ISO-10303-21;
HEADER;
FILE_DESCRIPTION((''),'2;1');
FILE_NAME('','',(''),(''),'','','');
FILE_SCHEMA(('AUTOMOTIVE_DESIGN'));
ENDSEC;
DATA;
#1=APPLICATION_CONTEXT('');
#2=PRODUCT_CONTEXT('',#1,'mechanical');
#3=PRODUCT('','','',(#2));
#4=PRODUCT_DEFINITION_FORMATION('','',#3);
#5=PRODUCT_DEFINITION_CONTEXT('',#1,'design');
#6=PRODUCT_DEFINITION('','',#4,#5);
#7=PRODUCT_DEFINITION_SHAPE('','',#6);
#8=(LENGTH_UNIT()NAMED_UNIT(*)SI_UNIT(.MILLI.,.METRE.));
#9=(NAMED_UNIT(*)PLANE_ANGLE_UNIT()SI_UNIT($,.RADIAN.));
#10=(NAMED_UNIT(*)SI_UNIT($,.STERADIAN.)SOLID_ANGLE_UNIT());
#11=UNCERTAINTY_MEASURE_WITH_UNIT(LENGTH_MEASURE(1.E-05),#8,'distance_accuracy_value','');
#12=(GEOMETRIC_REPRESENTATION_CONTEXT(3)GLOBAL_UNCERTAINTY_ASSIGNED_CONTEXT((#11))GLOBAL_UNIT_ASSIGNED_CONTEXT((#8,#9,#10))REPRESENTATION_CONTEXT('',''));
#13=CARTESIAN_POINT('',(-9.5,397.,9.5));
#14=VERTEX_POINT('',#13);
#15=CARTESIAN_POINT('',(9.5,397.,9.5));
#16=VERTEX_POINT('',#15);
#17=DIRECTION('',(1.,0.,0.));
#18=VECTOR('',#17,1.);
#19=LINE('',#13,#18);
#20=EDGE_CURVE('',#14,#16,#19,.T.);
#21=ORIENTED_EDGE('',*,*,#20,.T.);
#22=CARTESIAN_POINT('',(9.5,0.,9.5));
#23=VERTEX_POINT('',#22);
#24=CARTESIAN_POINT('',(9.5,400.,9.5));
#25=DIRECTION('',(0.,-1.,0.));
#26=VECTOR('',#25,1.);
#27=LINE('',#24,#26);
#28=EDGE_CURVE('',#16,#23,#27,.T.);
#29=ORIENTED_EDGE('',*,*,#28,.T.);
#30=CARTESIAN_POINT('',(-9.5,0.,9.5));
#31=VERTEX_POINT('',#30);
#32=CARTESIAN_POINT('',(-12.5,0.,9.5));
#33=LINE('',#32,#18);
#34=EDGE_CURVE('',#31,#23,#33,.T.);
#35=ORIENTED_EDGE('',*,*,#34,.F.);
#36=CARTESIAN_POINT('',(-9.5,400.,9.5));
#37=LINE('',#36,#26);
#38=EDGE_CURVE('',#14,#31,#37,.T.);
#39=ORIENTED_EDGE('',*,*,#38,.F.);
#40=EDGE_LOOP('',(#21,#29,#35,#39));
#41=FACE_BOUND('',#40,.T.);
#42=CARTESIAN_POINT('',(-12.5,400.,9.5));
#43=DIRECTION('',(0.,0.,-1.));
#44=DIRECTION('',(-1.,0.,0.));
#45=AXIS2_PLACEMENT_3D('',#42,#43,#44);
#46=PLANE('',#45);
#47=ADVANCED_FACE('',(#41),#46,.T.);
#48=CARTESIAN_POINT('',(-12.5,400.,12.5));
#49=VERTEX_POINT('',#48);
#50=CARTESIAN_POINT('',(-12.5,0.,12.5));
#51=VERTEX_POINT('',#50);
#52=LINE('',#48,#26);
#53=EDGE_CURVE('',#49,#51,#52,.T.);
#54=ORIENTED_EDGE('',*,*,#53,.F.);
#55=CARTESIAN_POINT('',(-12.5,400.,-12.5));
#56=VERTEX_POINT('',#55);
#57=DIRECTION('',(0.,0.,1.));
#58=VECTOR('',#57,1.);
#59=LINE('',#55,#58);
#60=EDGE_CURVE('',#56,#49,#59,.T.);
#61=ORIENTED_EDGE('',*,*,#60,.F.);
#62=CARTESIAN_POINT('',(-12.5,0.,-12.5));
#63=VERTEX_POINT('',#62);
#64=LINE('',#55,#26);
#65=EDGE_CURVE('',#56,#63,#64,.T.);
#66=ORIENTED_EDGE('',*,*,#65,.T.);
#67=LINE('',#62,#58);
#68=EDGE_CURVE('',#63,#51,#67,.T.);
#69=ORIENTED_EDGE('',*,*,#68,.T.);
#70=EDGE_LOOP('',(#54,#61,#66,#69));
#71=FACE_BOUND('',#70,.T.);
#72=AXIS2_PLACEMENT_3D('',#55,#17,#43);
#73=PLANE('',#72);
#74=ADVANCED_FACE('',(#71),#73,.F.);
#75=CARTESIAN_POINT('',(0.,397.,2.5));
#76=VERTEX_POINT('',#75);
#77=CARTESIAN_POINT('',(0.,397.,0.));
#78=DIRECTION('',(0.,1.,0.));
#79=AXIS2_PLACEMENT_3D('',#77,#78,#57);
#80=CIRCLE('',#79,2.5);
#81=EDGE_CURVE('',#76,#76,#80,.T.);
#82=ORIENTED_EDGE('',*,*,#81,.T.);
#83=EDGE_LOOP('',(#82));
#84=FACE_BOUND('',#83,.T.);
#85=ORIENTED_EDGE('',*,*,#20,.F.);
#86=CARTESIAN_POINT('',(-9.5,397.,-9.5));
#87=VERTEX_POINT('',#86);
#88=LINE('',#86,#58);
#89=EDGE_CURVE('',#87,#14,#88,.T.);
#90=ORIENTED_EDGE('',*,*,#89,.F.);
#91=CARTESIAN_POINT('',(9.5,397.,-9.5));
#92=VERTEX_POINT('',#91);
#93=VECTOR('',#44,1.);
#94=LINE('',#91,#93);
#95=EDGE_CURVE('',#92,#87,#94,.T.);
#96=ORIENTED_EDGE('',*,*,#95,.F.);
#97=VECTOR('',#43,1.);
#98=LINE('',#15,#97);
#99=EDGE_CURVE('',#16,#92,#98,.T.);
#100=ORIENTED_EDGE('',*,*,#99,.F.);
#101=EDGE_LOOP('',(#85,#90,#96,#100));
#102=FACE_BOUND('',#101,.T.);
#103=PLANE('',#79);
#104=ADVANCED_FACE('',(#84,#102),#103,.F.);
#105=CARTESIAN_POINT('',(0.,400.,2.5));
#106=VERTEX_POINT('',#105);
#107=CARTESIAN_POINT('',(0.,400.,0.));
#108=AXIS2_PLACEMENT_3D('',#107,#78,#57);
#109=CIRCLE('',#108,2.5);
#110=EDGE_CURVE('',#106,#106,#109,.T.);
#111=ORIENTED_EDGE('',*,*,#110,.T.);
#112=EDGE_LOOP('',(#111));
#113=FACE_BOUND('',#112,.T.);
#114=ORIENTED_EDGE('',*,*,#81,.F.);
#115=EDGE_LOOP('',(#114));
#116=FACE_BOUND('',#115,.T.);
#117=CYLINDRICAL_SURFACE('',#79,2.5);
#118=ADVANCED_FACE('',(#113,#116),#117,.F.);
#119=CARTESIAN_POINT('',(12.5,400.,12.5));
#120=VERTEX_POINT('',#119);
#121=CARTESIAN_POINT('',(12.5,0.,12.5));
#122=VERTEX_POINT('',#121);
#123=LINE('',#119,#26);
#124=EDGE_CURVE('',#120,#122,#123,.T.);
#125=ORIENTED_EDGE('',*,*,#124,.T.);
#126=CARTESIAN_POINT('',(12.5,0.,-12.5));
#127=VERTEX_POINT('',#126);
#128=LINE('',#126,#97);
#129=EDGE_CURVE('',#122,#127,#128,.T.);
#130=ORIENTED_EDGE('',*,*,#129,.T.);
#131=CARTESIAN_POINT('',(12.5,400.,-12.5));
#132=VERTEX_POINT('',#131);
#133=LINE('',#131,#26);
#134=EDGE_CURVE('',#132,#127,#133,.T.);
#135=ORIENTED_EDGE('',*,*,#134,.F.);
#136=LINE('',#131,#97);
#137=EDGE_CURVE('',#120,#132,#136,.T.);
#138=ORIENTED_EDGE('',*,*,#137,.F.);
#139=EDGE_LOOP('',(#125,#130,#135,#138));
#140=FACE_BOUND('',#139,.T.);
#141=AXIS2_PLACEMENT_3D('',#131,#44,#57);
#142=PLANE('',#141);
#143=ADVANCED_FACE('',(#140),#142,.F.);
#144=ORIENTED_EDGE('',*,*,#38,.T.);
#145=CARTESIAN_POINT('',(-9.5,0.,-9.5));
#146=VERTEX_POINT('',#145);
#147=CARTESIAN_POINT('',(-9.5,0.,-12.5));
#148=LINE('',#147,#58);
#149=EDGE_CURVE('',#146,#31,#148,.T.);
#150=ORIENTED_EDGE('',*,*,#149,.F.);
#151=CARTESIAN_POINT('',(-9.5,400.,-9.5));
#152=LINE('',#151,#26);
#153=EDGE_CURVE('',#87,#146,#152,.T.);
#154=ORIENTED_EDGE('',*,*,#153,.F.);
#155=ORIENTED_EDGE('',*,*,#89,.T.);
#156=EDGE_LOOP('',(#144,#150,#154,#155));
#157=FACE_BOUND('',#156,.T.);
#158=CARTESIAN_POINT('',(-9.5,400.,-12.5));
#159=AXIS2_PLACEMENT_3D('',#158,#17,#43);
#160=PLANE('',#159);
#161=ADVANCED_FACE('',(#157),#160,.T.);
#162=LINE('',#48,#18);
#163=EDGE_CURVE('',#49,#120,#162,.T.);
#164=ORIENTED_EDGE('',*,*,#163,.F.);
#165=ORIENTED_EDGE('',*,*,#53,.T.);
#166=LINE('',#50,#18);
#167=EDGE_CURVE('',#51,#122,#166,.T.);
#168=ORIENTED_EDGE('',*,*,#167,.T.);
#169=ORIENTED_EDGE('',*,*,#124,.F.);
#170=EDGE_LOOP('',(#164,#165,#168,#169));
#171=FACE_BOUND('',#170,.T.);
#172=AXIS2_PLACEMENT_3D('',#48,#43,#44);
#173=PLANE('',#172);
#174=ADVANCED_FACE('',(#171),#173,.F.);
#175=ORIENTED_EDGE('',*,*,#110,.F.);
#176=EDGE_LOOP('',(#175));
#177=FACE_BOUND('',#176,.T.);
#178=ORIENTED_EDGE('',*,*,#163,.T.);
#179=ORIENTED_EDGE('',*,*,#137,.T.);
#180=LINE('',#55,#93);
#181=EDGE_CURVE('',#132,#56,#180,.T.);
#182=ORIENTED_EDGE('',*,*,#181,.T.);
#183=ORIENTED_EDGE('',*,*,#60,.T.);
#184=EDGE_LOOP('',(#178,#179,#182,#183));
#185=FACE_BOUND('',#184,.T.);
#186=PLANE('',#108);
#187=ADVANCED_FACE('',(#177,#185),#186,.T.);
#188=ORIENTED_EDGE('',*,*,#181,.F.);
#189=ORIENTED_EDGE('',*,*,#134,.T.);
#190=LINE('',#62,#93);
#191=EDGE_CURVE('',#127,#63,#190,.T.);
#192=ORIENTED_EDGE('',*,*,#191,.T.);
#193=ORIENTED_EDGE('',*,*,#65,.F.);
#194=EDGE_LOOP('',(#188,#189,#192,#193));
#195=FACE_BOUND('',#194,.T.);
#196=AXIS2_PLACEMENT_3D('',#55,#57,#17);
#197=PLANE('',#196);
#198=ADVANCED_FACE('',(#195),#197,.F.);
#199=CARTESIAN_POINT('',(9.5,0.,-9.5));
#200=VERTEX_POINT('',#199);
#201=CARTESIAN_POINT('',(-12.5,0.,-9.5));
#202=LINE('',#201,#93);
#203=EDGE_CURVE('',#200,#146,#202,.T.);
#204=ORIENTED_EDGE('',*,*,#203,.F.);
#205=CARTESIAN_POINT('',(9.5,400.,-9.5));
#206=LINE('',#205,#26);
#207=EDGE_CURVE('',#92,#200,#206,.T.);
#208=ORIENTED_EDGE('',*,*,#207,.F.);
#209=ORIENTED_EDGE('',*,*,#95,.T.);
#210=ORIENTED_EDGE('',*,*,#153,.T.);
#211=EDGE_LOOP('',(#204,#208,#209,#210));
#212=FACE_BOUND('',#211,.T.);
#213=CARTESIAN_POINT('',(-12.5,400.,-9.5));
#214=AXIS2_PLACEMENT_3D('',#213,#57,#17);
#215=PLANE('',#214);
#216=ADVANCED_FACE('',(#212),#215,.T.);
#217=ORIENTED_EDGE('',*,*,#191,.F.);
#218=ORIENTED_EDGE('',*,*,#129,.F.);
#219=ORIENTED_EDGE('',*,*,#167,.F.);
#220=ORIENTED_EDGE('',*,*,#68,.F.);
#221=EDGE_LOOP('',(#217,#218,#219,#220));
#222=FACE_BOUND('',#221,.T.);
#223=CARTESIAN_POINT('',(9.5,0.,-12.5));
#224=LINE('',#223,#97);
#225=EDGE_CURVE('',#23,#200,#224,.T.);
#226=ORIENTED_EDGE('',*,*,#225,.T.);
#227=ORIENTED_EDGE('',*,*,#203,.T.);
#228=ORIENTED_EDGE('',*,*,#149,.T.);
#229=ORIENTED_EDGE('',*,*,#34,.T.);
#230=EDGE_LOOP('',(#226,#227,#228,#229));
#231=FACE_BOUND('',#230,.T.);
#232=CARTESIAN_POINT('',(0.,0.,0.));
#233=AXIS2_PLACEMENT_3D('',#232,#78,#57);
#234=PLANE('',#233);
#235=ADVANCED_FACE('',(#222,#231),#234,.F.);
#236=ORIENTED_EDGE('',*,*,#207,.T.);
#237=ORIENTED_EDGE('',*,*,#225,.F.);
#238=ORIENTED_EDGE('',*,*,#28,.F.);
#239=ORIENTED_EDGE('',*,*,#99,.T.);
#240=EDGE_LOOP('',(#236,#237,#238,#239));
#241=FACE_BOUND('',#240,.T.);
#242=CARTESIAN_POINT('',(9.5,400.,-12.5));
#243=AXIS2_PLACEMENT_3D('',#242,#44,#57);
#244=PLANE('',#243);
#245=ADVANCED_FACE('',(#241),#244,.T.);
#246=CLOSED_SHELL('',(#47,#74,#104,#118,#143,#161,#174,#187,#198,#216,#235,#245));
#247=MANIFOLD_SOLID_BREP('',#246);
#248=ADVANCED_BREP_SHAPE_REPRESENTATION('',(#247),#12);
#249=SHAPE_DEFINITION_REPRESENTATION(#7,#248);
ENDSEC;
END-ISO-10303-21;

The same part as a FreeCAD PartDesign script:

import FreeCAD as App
import Part
import Sketcher

V = App.Vector
Q = App.Units.Quantity


def faces_at(feature, points):
    """Names of the faces that lie closest to the given points."""
    faces = feature.Shape.Faces
    near = lambda p: min(range(len(faces)), key=lambda i: faces[i].distToShape(Part.Vertex(*p))[0])
    return sorted({f"Face{near(p) + 1}" for p in points})


def add_polygon(sketch, points):
    """Adds a closed chain of lines whose ends are joined by coincident constraints."""
    first, n = sketch.GeometryCount, len(points)
    for a, b in zip(points, points[1:] + points[:1]):
        sketch.addGeometry(Part.LineSegment(App.Vector(*a, 0), App.Vector(*b, 0)), False)
    for i in range(n):
        sketch.addConstraint(Sketcher.Constraint("Coincident", first + i, 2, first + (i + 1) % n, 1))

doc = App.newDocument("Part")
params = doc.addObject("Spreadsheet::Sheet", "Params")
for row, (alias, value) in enumerate([
    ("sketch1_width", "25 mm"),
    ("pad1_length", "400 mm"),
    ("thickness_wall", "3 mm"),
    ("sketch2_diameter", "5 mm"),
    ("sketch2_width", "19 mm"),
    ("pad2_length", "3 mm"),
], start=1):
    params.set(f"A{row}", alias)
    params.set(f"B{row}", "=" + value)
    params.setAlias(f"B{row}", alias)

body = doc.addObject("PartDesign::Body", "Body")

# Sketch on XZ plane
sketch1 = doc.addObject("Sketcher::SketchObject", "Sketch")
body.addObject(sketch1)
sketch1.AttachmentSupport = (doc.XZ_Plane, [""])
sketch1.MapMode = "FlatFace"
add_polygon(sketch1, [(-12.5, -12.5), (-12.5, 12.5), (12.5, 12.5), (12.5, -12.5)])  # lines 0-3
sketch1.addConstraint([
    Sketcher.Constraint("Vertical", 0),
    Sketcher.Constraint("Horizontal", 1),
    Sketcher.Constraint("Vertical", 2),
    Sketcher.Constraint("Horizontal", 3),
    Sketcher.Constraint("Symmetric", 0, 2, 2, 2, -1, 1),
    Sketcher.Constraint("Equal", 3, 0),
    Sketcher.Constraint("DistanceX", 1, 1, 1, 2, Q("25 mm")),
])
sketch1.setExpression("Constraints[10]", "Params.sketch1_width")
pad1 = doc.addObject("PartDesign::Pad", "Pad")
body.addObject(pad1)
pad1.Profile = sketch1
pad1.setExpression("Length", "Params.pad1_length")
pad1.Reversed = True
doc.recompute()

thickness = doc.addObject("PartDesign::Thickness", "Thickness")
body.addObject(thickness)
thickness.Base = (pad1, faces_at(pad1, [(0, 400, 0), (0, 0, 0)]))
thickness.setExpression("Value", "Params.thickness_wall")
thickness.Reversed = True
thickness.Join = "Intersection"

# Sketch on XZ plane
sketch2 = doc.addObject("Sketcher::SketchObject", "Sketch001")
body.addObject(sketch2)
sketch2.AttachmentSupport = (doc.XZ_Plane, [""])
sketch2.MapMode = "FlatFace"
sketch2.AttachmentOffset = App.Placement(V(0, 0, -400), App.Rotation())
add_polygon(sketch2, [(-9.5, -9.5), (-9.5, 9.5), (9.5, 9.5), (9.5, -9.5)])  # lines 0-3
sketch2.addGeometry(Part.Circle(V(0, 0, 0), V(0, 0, 1), 2.5), False)  # 4
sketch2.addConstraint([
    Sketcher.Constraint("Vertical", 0),
    Sketcher.Constraint("Horizontal", 1),
    Sketcher.Constraint("Vertical", 2),
    Sketcher.Constraint("Horizontal", 3),
    Sketcher.Constraint("Coincident", 4, 3, -1, 1),
    Sketcher.Constraint("Symmetric", 0, 2, 2, 2, -1, 1),
    Sketcher.Constraint("Equal", 3, 0),
    Sketcher.Constraint("Diameter", 4, Q("5 mm")),
    Sketcher.Constraint("DistanceX", 1, 1, 1, 2, Q("19 mm")),
])
sketch2.setExpression("Constraints[11]", "Params.sketch2_diameter")
sketch2.setExpression("Constraints[12]", "Params.sketch2_width")
pad2 = doc.addObject("PartDesign::Pad", "Pad001")
body.addObject(pad2)
pad2.Profile = sketch2
pad2.setExpression("Length", "Params.pad2_length")

doc.recompute()
